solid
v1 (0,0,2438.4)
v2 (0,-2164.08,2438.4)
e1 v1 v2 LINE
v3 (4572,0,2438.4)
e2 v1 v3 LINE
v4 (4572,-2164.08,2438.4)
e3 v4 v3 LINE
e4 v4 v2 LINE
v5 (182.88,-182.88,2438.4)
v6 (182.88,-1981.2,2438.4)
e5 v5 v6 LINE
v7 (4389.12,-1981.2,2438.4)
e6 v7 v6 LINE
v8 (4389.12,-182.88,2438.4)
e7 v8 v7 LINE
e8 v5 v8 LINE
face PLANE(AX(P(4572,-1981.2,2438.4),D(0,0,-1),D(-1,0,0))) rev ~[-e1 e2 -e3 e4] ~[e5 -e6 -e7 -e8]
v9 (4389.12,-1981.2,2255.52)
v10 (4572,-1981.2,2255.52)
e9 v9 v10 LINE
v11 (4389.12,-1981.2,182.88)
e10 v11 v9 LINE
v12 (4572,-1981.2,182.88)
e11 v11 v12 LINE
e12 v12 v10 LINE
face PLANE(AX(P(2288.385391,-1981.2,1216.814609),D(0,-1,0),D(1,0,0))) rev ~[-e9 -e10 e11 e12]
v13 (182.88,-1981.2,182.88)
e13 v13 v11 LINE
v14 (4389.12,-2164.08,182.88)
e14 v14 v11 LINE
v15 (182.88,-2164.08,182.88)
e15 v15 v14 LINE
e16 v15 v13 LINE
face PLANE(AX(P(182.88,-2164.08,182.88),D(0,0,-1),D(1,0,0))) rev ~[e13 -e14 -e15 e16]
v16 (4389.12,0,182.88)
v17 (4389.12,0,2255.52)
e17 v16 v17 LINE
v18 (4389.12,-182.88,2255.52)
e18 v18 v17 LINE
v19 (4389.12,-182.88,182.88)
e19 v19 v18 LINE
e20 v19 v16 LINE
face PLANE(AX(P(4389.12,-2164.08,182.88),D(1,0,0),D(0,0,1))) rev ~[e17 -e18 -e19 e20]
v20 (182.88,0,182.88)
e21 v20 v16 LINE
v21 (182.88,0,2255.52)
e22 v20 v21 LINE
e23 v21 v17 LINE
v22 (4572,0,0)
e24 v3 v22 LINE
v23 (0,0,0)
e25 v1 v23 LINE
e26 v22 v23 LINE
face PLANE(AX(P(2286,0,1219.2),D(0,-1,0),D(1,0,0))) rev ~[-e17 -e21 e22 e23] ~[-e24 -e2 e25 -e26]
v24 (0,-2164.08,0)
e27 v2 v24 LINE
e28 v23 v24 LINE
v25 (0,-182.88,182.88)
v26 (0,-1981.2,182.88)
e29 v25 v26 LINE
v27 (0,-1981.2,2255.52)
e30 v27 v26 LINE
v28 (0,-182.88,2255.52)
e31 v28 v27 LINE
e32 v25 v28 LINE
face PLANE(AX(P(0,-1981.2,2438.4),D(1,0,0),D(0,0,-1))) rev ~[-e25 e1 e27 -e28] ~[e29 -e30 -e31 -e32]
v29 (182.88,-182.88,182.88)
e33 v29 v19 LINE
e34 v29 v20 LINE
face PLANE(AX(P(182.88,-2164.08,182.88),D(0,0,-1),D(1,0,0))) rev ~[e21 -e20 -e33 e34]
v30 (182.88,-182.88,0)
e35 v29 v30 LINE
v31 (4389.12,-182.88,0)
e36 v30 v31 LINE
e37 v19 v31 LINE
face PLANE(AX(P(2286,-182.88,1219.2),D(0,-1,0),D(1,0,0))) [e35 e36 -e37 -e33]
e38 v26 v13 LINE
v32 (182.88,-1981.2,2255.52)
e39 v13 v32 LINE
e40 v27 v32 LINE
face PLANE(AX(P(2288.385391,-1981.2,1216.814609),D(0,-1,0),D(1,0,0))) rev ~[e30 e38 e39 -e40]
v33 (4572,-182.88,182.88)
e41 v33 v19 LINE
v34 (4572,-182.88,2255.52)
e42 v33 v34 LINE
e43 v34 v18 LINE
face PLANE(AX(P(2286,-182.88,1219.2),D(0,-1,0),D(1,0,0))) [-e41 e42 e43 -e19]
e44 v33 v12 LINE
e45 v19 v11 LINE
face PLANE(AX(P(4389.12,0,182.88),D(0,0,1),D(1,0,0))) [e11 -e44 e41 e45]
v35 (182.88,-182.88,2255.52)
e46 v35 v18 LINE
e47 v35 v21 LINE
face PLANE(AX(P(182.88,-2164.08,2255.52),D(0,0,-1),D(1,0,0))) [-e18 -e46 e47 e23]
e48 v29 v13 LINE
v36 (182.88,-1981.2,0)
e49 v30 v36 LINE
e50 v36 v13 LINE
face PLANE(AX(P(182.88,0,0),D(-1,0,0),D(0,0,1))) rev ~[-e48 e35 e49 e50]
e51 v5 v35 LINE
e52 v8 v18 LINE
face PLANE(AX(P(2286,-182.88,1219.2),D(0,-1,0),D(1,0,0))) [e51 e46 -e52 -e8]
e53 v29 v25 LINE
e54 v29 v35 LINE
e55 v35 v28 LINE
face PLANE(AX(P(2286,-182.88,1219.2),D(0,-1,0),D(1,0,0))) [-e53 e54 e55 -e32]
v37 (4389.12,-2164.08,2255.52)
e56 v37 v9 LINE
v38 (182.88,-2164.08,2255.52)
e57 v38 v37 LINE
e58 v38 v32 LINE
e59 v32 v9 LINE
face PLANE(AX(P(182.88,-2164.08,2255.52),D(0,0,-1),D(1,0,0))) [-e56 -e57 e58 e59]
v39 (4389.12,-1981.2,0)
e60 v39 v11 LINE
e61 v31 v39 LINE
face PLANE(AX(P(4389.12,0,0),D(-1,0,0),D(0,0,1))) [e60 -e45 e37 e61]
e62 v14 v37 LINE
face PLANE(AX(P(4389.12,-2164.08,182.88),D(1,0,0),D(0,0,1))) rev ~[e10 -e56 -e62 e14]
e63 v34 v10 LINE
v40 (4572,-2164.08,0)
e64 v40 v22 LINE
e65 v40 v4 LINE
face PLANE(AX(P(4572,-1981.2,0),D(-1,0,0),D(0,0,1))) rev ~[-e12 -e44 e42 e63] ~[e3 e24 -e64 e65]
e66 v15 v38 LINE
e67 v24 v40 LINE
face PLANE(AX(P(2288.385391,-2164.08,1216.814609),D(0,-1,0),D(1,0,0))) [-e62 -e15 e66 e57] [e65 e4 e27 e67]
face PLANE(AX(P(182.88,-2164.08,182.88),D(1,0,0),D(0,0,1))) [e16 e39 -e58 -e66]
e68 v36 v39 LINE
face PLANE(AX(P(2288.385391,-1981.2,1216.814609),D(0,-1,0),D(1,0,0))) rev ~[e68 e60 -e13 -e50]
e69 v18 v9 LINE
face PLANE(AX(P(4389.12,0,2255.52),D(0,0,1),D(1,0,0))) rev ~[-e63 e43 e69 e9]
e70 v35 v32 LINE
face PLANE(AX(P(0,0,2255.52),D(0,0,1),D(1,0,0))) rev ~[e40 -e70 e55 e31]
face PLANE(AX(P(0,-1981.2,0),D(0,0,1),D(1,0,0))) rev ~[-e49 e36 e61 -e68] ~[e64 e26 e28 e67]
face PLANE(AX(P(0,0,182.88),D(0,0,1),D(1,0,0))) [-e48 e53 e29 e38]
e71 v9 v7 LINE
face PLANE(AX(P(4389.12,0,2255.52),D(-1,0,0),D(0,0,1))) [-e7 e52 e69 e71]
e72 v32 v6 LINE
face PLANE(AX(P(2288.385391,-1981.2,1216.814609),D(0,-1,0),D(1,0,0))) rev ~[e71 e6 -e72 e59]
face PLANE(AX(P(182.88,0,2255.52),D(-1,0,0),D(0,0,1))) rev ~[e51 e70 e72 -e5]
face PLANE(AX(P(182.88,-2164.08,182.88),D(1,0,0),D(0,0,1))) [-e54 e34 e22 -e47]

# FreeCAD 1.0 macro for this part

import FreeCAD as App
import Part
import Sketcher
from FreeCAD import Vector
Q = App.Units.Quantity

doc = App.newDocument("Part")
params = doc.addObject("Spreadsheet::Sheet", "Params")
for row, (alias, value) in enumerate([
    ("sketch1_width", "180 in"),
    ("sketch1_height", "96 in"),
    ("pad1_length", "7.2 in"),
    ("sketch2_width", "7.2 in"),
    ("pad2_length", "78 in"),
    ("sketch3_width", "180 in"),
    ("sketch3_height", "96 in"),
    ("pad3_length", "7.2 in"),
    ("sketch4_width", "165.6 in"),
    ("sketch4_height", "81.6 in"),
    ("pocket1_length", "90 in"),
], start=1):
    params.set(f"A{row}", alias)
    params.set(f"B{row}", "=" + value)
    params.setAlias(f"B{row}", alias)

body = doc.addObject("PartDesign::Body", "Body")

sketch1 = doc.addObject("Sketcher::SketchObject", "Sketch")
body.addObject(sketch1)
sketch1.AttachmentSupport = (doc.XZ_Plane, [""])
sketch1.MapMode = "FlatFace"
sketch1.addGeometry(Part.LineSegment(Vector(0, 2438.4, 0), Vector(0, 0, 0)), False)
sketch1.addGeometry(Part.LineSegment(Vector(0, 0, 0), Vector(4572, 0, 0)), False)
sketch1.addGeometry(Part.LineSegment(Vector(4572, 0, 0), Vector(4572, 2438.4, 0)), False)
sketch1.addGeometry(Part.LineSegment(Vector(4572, 2438.4, 0), Vector(0, 2438.4, 0)), False)
sketch1.addConstraint(Sketcher.Constraint("Coincident", 0, 2, 1, 1))
sketch1.addConstraint(Sketcher.Constraint("Coincident", 1, 2, 2, 1))
sketch1.addConstraint(Sketcher.Constraint("Coincident", 2, 2, 3, 1))
sketch1.addConstraint(Sketcher.Constraint("Coincident", 3, 2, 0, 1))
sketch1.addConstraint(Sketcher.Constraint("Vertical", 0))
sketch1.addConstraint(Sketcher.Constraint("Horizontal", 1))
sketch1.addConstraint(Sketcher.Constraint("Vertical", 2))
sketch1.addConstraint(Sketcher.Constraint("Horizontal", 3))
sketch1.addConstraint(Sketcher.Constraint("Coincident", 0, 2, -1, 1))
sketch1.addConstraint(Sketcher.Constraint("DistanceX", 1, 1, 1, 2, Q("180 in")))
sketch1.addConstraint(Sketcher.Constraint("DistanceY", 0, 2, 0, 1, Q("96 in")))
sketch1.setExpression("Constraints[9]", "Params.sketch1_width")
sketch1.setExpression("Constraints[10]", "Params.sketch1_height")
pad1 = doc.addObject("PartDesign::Pad", "Pad")
body.addObject(pad1)
pad1.Profile = sketch1
pad1.setExpression("Length", "Params.pad1_length")

sketch2 = doc.addObject("Sketcher::SketchObject", "Sketch001")
body.addObject(sketch2)
sketch2.AttachmentSupport = (doc.XZ_Plane, [""])
sketch2.MapMode = "FlatFace"
sketch2.addGeometry(Part.LineSegment(Vector(0, 2438.4, 0), Vector(0, 2255.52, 0)), False)
sketch2.addGeometry(Part.LineSegment(Vector(0, 2255.52, 0), Vector(182.88, 2255.52, 0)), False)
sketch2.addGeometry(Part.LineSegment(Vector(182.88, 2255.52, 0), Vector(182.88, 2438.4, 0)), False)
sketch2.addGeometry(Part.LineSegment(Vector(182.88, 2438.4, 0), Vector(0, 2438.4, 0)), False)
sketch2.addGeometry(Part.LineSegment(Vector(0, 182.88, 0), Vector(0, 0, 0)), False)
sketch2.addGeometry(Part.LineSegment(Vector(0, 0, 0), Vector(182.88, 0, 0)), False)
sketch2.addGeometry(Part.LineSegment(Vector(182.88, 0, 0), Vector(182.88, 182.88, 0)), False)
sketch2.addGeometry(Part.LineSegment(Vector(182.88, 182.88, 0), Vector(0, 182.88, 0)), False)
sketch2.addGeometry(Part.LineSegment(Vector(4389.12, 182.88, 0), Vector(4389.12, 0, 0)), False)
sketch2.addGeometry(Part.LineSegment(Vector(4389.12, 0, 0), Vector(4572, 0, 0)), False)
sketch2.addGeometry(Part.LineSegment(Vector(4572, 0, 0), Vector(4572, 182.88, 0)), False)
sketch2.addGeometry(Part.LineSegment(Vector(4572, 182.88, 0), Vector(4389.12, 182.88, 0)), False)
sketch2.addGeometry(Part.LineSegment(Vector(4389.12, 2438.4, 0), Vector(4389.12, 2255.52, 0)), False)
sketch2.addGeometry(Part.LineSegment(Vector(4389.12, 2255.52, 0), Vector(4572, 2255.52, 0)), False)
sketch2.addGeometry(Part.LineSegment(Vector(4572, 2255.52, 0), Vector(4572, 2438.4, 0)), False)
sketch2.addGeometry(Part.LineSegment(Vector(4572, 2438.4, 0), Vector(4389.12, 2438.4, 0)), False)
sketch2.addConstraint(Sketcher.Constraint("Coincident", 0, 2, 1, 1))
sketch2.addConstraint(Sketcher.Constraint("Coincident", 1, 2, 2, 1))
sketch2.addConstraint(Sketcher.Constraint("Coincident", 2, 2, 3, 1))
sketch2.addConstraint(Sketcher.Constraint("Coincident", 3, 2, 0, 1))
sketch2.addConstraint(Sketcher.Constraint("Coincident", 4, 2, 5, 1))
sketch2.addConstraint(Sketcher.Constraint("Coincident", 5, 2, 6, 1))
sketch2.addConstraint(Sketcher.Constraint("Coincident", 6, 2, 7, 1))
sketch2.addConstraint(Sketcher.Constraint("Coincident", 7, 2, 4, 1))
sketch2.addConstraint(Sketcher.Constraint("Coincident", 8, 2, 9, 1))
sketch2.addConstraint(Sketcher.Constraint("Coincident", 9, 2, 10, 1))
sketch2.addConstraint(Sketcher.Constraint("Coincident", 10, 2, 11, 1))
sketch2.addConstraint(Sketcher.Constraint("Coincident", 11, 2, 8, 1))
sketch2.addConstraint(Sketcher.Constraint("Coincident", 12, 2, 13, 1))
sketch2.addConstraint(Sketcher.Constraint("Coincident", 13, 2, 14, 1))
sketch2.addConstraint(Sketcher.Constraint("Coincident", 14, 2, 15, 1))
sketch2.addConstraint(Sketcher.Constraint("Coincident", 15, 2, 12, 1))
sketch2.addConstraint(Sketcher.Constraint("Vertical", 0))
sketch2.addConstraint(Sketcher.Constraint("Horizontal", 1))
sketch2.addConstraint(Sketcher.Constraint("Vertical", 2))
sketch2.addConstraint(Sketcher.Constraint("Horizontal", 3))
sketch2.addConstraint(Sketcher.Constraint("Vertical", 4))
sketch2.addConstraint(Sketcher.Constraint("Horizontal", 5))
sketch2.addConstraint(Sketcher.Constraint("Vertical", 6))
sketch2.addConstraint(Sketcher.Constraint("Horizontal", 7))
sketch2.addConstraint(Sketcher.Constraint("Vertical", 8))
sketch2.addConstraint(Sketcher.Constraint("Horizontal", 9))
sketch2.addConstraint(Sketcher.Constraint("Vertical", 10))
sketch2.addConstraint(Sketcher.Constraint("Horizontal", 11))
sketch2.addConstraint(Sketcher.Constraint("Vertical", 12))
sketch2.addConstraint(Sketcher.Constraint("Horizontal", 13))
sketch2.addConstraint(Sketcher.Constraint("Vertical", 14))
sketch2.addConstraint(Sketcher.Constraint("Horizontal", 15))
sketch2.addConstraint(Sketcher.Constraint("Coincident", 4, 2, -1, 1))
sketch2.addConstraint(Sketcher.Constraint("PointOnObject", 0, 2, -2))
sketch2.addConstraint(Sketcher.Constraint("PointOnObject", 8, 2, -1))
sketch2.addConstraint(Sketcher.Constraint("Horizontal", 7, 2, 10, 2))
sketch2.addConstraint(Sketcher.Constraint("Horizontal", 1, 2, 12, 2))
sketch2.addConstraint(Sketcher.Constraint("Horizontal", 3, 2, 14, 2))
sketch2.addConstraint(Sketcher.Constraint("Vertical", 2, 2, 5, 2))
sketch2.addConstraint(Sketcher.Constraint("Vertical", 11, 2, 12, 2))
sketch2.addConstraint(Sketcher.Constraint("Vertical", 10, 2, 13, 2))
sketch2.addConstraint(Sketcher.Constraint("Equal", 7, 9))
sketch2.addConstraint(Sketcher.Constraint("Equal", 15, 0))
sketch2.addConstraint(Sketcher.Constraint("Equal", 2, 4))
sketch2.addConstraint(Sketcher.Constraint("DistanceX", 1, 1, 1, 2, Q("7.2 in")))
sketch2.addConstraint(Sketcher.Constraint("DistanceY", -1, 1, 2, 2, Q("96 in")))
sketch2.addConstraint(Sketcher.Constraint("DistanceX", -1, 1, 9, 2, Q("180 in")))
sketch2.setExpression("Constraints[44]", "Params.sketch2_width")
pad2 = doc.addObject("PartDesign::Pad", "Pad001")
body.addObject(pad2)
pad2.Profile = sketch2
pad2.setExpression("Length", "Params.pad2_length")

sketch3 = doc.addObject("Sketcher::SketchObject", "Sketch002")
body.addObject(sketch3)
sketch3.AttachmentSupport = (doc.XZ_Plane, [""])
sketch3.MapMode = "FlatFace"
sketch3.AttachmentOffset = App.Placement(Vector(0, 0, 78 * 25.4), App.Rotation())
sketch3.addGeometry(Part.LineSegment(Vector(4572, 2438.4, 0), Vector(0, 2438.4, 0)), False)
sketch3.addGeometry(Part.LineSegment(Vector(0, 2438.4, 0), Vector(0, 0, 0)), False)
sketch3.addGeometry(Part.LineSegment(Vector(0, 0, 0), Vector(4572, 0, 0)), False)
sketch3.addGeometry(Part.LineSegment(Vector(4572, 0, 0), Vector(4572, 2438.4, 0)), False)
sketch3.addConstraint(Sketcher.Constraint("Coincident", 0, 2, 1, 1))
sketch3.addConstraint(Sketcher.Constraint("Coincident", 1, 2, 2, 1))
sketch3.addConstraint(Sketcher.Constraint("Coincident", 2, 2, 3, 1))
sketch3.addConstraint(Sketcher.Constraint("Coincident", 3, 2, 0, 1))
sketch3.addConstraint(Sketcher.Constraint("Horizontal", 0))
sketch3.addConstraint(Sketcher.Constraint("Vertical", 1))
sketch3.addConstraint(Sketcher.Constraint("Horizontal", 2))
sketch3.addConstraint(Sketcher.Constraint("Vertical", 3))
sketch3.addConstraint(Sketcher.Constraint("Coincident", 1, 2, -1, 1))
sketch3.addConstraint(Sketcher.Constraint("DistanceX", 0, 2, 0, 1, Q("180 in")))
sketch3.addConstraint(Sketcher.Constraint("DistanceY", 1, 2, 1, 1, Q("96 in")))
sketch3.setExpression("Constraints[9]", "Params.sketch3_width")
sketch3.setExpression("Constraints[10]", "Params.sketch3_height")
pad3 = doc.addObject("PartDesign::Pad", "Pad002")
body.addObject(pad3)
pad3.Profile = sketch3
pad3.setExpression("Length", "Params.pad3_length")

sketch4 = doc.addObject("Sketcher::SketchObject", "Sketch003")
body.addObject(sketch4)
sketch4.AttachmentSupport = (doc.XZ_Plane, [""])
sketch4.MapMode = "FlatFace"
sketch4.AttachmentOffset = App.Placement(Vector(0, 0, 85.2 * 25.4), App.Rotation())
sketch4.addGeometry(Part.LineSegment(Vector(182.88, 2255.52, 0), Vector(182.88, 182.88, 0)), False)
sketch4.addGeometry(Part.LineSegment(Vector(182.88, 182.88, 0), Vector(4389.12, 182.88, 0)), False)
sketch4.addGeometry(Part.LineSegment(Vector(4389.12, 182.88, 0), Vector(4389.12, 2255.52, 0)), False)
sketch4.addGeometry(Part.LineSegment(Vector(4389.12, 2255.52, 0), Vector(182.88, 2255.52, 0)), False)
sketch4.addConstraint(Sketcher.Constraint("Coincident", 0, 2, 1, 1))
sketch4.addConstraint(Sketcher.Constraint("Coincident", 1, 2, 2, 1))
sketch4.addConstraint(Sketcher.Constraint("Coincident", 2, 2, 3, 1))
sketch4.addConstraint(Sketcher.Constraint("Coincident", 3, 2, 0, 1))
sketch4.addConstraint(Sketcher.Constraint("Vertical", 0))
sketch4.addConstraint(Sketcher.Constraint("Horizontal", 1))
sketch4.addConstraint(Sketcher.Constraint("Vertical", 2))
sketch4.addConstraint(Sketcher.Constraint("Horizontal", 3))
sketch4.addConstraint(Sketcher.Constraint("DistanceX", 1, 1, 1, 2, Q("165.6 in")))
sketch4.addConstraint(Sketcher.Constraint("DistanceY", 0, 2, 0, 1, Q("81.6 in")))
sketch4.addConstraint(Sketcher.Constraint("DistanceX", -1, 1, 0, 2, Q("7.2 in")))
sketch4.addConstraint(Sketcher.Constraint("DistanceY", -1, 1, 0, 2, Q("7.2 in")))
sketch4.setExpression("Constraints[8]", "Params.sketch4_width")
sketch4.setExpression("Constraints[9]", "Params.sketch4_height")
pocket1 = doc.addObject("PartDesign::Pocket", "Pocket")
body.addObject(pocket1)
pocket1.Profile = sketch4
pocket1.setExpression("Length", "Params.pocket1_length")

doc.recompute()
